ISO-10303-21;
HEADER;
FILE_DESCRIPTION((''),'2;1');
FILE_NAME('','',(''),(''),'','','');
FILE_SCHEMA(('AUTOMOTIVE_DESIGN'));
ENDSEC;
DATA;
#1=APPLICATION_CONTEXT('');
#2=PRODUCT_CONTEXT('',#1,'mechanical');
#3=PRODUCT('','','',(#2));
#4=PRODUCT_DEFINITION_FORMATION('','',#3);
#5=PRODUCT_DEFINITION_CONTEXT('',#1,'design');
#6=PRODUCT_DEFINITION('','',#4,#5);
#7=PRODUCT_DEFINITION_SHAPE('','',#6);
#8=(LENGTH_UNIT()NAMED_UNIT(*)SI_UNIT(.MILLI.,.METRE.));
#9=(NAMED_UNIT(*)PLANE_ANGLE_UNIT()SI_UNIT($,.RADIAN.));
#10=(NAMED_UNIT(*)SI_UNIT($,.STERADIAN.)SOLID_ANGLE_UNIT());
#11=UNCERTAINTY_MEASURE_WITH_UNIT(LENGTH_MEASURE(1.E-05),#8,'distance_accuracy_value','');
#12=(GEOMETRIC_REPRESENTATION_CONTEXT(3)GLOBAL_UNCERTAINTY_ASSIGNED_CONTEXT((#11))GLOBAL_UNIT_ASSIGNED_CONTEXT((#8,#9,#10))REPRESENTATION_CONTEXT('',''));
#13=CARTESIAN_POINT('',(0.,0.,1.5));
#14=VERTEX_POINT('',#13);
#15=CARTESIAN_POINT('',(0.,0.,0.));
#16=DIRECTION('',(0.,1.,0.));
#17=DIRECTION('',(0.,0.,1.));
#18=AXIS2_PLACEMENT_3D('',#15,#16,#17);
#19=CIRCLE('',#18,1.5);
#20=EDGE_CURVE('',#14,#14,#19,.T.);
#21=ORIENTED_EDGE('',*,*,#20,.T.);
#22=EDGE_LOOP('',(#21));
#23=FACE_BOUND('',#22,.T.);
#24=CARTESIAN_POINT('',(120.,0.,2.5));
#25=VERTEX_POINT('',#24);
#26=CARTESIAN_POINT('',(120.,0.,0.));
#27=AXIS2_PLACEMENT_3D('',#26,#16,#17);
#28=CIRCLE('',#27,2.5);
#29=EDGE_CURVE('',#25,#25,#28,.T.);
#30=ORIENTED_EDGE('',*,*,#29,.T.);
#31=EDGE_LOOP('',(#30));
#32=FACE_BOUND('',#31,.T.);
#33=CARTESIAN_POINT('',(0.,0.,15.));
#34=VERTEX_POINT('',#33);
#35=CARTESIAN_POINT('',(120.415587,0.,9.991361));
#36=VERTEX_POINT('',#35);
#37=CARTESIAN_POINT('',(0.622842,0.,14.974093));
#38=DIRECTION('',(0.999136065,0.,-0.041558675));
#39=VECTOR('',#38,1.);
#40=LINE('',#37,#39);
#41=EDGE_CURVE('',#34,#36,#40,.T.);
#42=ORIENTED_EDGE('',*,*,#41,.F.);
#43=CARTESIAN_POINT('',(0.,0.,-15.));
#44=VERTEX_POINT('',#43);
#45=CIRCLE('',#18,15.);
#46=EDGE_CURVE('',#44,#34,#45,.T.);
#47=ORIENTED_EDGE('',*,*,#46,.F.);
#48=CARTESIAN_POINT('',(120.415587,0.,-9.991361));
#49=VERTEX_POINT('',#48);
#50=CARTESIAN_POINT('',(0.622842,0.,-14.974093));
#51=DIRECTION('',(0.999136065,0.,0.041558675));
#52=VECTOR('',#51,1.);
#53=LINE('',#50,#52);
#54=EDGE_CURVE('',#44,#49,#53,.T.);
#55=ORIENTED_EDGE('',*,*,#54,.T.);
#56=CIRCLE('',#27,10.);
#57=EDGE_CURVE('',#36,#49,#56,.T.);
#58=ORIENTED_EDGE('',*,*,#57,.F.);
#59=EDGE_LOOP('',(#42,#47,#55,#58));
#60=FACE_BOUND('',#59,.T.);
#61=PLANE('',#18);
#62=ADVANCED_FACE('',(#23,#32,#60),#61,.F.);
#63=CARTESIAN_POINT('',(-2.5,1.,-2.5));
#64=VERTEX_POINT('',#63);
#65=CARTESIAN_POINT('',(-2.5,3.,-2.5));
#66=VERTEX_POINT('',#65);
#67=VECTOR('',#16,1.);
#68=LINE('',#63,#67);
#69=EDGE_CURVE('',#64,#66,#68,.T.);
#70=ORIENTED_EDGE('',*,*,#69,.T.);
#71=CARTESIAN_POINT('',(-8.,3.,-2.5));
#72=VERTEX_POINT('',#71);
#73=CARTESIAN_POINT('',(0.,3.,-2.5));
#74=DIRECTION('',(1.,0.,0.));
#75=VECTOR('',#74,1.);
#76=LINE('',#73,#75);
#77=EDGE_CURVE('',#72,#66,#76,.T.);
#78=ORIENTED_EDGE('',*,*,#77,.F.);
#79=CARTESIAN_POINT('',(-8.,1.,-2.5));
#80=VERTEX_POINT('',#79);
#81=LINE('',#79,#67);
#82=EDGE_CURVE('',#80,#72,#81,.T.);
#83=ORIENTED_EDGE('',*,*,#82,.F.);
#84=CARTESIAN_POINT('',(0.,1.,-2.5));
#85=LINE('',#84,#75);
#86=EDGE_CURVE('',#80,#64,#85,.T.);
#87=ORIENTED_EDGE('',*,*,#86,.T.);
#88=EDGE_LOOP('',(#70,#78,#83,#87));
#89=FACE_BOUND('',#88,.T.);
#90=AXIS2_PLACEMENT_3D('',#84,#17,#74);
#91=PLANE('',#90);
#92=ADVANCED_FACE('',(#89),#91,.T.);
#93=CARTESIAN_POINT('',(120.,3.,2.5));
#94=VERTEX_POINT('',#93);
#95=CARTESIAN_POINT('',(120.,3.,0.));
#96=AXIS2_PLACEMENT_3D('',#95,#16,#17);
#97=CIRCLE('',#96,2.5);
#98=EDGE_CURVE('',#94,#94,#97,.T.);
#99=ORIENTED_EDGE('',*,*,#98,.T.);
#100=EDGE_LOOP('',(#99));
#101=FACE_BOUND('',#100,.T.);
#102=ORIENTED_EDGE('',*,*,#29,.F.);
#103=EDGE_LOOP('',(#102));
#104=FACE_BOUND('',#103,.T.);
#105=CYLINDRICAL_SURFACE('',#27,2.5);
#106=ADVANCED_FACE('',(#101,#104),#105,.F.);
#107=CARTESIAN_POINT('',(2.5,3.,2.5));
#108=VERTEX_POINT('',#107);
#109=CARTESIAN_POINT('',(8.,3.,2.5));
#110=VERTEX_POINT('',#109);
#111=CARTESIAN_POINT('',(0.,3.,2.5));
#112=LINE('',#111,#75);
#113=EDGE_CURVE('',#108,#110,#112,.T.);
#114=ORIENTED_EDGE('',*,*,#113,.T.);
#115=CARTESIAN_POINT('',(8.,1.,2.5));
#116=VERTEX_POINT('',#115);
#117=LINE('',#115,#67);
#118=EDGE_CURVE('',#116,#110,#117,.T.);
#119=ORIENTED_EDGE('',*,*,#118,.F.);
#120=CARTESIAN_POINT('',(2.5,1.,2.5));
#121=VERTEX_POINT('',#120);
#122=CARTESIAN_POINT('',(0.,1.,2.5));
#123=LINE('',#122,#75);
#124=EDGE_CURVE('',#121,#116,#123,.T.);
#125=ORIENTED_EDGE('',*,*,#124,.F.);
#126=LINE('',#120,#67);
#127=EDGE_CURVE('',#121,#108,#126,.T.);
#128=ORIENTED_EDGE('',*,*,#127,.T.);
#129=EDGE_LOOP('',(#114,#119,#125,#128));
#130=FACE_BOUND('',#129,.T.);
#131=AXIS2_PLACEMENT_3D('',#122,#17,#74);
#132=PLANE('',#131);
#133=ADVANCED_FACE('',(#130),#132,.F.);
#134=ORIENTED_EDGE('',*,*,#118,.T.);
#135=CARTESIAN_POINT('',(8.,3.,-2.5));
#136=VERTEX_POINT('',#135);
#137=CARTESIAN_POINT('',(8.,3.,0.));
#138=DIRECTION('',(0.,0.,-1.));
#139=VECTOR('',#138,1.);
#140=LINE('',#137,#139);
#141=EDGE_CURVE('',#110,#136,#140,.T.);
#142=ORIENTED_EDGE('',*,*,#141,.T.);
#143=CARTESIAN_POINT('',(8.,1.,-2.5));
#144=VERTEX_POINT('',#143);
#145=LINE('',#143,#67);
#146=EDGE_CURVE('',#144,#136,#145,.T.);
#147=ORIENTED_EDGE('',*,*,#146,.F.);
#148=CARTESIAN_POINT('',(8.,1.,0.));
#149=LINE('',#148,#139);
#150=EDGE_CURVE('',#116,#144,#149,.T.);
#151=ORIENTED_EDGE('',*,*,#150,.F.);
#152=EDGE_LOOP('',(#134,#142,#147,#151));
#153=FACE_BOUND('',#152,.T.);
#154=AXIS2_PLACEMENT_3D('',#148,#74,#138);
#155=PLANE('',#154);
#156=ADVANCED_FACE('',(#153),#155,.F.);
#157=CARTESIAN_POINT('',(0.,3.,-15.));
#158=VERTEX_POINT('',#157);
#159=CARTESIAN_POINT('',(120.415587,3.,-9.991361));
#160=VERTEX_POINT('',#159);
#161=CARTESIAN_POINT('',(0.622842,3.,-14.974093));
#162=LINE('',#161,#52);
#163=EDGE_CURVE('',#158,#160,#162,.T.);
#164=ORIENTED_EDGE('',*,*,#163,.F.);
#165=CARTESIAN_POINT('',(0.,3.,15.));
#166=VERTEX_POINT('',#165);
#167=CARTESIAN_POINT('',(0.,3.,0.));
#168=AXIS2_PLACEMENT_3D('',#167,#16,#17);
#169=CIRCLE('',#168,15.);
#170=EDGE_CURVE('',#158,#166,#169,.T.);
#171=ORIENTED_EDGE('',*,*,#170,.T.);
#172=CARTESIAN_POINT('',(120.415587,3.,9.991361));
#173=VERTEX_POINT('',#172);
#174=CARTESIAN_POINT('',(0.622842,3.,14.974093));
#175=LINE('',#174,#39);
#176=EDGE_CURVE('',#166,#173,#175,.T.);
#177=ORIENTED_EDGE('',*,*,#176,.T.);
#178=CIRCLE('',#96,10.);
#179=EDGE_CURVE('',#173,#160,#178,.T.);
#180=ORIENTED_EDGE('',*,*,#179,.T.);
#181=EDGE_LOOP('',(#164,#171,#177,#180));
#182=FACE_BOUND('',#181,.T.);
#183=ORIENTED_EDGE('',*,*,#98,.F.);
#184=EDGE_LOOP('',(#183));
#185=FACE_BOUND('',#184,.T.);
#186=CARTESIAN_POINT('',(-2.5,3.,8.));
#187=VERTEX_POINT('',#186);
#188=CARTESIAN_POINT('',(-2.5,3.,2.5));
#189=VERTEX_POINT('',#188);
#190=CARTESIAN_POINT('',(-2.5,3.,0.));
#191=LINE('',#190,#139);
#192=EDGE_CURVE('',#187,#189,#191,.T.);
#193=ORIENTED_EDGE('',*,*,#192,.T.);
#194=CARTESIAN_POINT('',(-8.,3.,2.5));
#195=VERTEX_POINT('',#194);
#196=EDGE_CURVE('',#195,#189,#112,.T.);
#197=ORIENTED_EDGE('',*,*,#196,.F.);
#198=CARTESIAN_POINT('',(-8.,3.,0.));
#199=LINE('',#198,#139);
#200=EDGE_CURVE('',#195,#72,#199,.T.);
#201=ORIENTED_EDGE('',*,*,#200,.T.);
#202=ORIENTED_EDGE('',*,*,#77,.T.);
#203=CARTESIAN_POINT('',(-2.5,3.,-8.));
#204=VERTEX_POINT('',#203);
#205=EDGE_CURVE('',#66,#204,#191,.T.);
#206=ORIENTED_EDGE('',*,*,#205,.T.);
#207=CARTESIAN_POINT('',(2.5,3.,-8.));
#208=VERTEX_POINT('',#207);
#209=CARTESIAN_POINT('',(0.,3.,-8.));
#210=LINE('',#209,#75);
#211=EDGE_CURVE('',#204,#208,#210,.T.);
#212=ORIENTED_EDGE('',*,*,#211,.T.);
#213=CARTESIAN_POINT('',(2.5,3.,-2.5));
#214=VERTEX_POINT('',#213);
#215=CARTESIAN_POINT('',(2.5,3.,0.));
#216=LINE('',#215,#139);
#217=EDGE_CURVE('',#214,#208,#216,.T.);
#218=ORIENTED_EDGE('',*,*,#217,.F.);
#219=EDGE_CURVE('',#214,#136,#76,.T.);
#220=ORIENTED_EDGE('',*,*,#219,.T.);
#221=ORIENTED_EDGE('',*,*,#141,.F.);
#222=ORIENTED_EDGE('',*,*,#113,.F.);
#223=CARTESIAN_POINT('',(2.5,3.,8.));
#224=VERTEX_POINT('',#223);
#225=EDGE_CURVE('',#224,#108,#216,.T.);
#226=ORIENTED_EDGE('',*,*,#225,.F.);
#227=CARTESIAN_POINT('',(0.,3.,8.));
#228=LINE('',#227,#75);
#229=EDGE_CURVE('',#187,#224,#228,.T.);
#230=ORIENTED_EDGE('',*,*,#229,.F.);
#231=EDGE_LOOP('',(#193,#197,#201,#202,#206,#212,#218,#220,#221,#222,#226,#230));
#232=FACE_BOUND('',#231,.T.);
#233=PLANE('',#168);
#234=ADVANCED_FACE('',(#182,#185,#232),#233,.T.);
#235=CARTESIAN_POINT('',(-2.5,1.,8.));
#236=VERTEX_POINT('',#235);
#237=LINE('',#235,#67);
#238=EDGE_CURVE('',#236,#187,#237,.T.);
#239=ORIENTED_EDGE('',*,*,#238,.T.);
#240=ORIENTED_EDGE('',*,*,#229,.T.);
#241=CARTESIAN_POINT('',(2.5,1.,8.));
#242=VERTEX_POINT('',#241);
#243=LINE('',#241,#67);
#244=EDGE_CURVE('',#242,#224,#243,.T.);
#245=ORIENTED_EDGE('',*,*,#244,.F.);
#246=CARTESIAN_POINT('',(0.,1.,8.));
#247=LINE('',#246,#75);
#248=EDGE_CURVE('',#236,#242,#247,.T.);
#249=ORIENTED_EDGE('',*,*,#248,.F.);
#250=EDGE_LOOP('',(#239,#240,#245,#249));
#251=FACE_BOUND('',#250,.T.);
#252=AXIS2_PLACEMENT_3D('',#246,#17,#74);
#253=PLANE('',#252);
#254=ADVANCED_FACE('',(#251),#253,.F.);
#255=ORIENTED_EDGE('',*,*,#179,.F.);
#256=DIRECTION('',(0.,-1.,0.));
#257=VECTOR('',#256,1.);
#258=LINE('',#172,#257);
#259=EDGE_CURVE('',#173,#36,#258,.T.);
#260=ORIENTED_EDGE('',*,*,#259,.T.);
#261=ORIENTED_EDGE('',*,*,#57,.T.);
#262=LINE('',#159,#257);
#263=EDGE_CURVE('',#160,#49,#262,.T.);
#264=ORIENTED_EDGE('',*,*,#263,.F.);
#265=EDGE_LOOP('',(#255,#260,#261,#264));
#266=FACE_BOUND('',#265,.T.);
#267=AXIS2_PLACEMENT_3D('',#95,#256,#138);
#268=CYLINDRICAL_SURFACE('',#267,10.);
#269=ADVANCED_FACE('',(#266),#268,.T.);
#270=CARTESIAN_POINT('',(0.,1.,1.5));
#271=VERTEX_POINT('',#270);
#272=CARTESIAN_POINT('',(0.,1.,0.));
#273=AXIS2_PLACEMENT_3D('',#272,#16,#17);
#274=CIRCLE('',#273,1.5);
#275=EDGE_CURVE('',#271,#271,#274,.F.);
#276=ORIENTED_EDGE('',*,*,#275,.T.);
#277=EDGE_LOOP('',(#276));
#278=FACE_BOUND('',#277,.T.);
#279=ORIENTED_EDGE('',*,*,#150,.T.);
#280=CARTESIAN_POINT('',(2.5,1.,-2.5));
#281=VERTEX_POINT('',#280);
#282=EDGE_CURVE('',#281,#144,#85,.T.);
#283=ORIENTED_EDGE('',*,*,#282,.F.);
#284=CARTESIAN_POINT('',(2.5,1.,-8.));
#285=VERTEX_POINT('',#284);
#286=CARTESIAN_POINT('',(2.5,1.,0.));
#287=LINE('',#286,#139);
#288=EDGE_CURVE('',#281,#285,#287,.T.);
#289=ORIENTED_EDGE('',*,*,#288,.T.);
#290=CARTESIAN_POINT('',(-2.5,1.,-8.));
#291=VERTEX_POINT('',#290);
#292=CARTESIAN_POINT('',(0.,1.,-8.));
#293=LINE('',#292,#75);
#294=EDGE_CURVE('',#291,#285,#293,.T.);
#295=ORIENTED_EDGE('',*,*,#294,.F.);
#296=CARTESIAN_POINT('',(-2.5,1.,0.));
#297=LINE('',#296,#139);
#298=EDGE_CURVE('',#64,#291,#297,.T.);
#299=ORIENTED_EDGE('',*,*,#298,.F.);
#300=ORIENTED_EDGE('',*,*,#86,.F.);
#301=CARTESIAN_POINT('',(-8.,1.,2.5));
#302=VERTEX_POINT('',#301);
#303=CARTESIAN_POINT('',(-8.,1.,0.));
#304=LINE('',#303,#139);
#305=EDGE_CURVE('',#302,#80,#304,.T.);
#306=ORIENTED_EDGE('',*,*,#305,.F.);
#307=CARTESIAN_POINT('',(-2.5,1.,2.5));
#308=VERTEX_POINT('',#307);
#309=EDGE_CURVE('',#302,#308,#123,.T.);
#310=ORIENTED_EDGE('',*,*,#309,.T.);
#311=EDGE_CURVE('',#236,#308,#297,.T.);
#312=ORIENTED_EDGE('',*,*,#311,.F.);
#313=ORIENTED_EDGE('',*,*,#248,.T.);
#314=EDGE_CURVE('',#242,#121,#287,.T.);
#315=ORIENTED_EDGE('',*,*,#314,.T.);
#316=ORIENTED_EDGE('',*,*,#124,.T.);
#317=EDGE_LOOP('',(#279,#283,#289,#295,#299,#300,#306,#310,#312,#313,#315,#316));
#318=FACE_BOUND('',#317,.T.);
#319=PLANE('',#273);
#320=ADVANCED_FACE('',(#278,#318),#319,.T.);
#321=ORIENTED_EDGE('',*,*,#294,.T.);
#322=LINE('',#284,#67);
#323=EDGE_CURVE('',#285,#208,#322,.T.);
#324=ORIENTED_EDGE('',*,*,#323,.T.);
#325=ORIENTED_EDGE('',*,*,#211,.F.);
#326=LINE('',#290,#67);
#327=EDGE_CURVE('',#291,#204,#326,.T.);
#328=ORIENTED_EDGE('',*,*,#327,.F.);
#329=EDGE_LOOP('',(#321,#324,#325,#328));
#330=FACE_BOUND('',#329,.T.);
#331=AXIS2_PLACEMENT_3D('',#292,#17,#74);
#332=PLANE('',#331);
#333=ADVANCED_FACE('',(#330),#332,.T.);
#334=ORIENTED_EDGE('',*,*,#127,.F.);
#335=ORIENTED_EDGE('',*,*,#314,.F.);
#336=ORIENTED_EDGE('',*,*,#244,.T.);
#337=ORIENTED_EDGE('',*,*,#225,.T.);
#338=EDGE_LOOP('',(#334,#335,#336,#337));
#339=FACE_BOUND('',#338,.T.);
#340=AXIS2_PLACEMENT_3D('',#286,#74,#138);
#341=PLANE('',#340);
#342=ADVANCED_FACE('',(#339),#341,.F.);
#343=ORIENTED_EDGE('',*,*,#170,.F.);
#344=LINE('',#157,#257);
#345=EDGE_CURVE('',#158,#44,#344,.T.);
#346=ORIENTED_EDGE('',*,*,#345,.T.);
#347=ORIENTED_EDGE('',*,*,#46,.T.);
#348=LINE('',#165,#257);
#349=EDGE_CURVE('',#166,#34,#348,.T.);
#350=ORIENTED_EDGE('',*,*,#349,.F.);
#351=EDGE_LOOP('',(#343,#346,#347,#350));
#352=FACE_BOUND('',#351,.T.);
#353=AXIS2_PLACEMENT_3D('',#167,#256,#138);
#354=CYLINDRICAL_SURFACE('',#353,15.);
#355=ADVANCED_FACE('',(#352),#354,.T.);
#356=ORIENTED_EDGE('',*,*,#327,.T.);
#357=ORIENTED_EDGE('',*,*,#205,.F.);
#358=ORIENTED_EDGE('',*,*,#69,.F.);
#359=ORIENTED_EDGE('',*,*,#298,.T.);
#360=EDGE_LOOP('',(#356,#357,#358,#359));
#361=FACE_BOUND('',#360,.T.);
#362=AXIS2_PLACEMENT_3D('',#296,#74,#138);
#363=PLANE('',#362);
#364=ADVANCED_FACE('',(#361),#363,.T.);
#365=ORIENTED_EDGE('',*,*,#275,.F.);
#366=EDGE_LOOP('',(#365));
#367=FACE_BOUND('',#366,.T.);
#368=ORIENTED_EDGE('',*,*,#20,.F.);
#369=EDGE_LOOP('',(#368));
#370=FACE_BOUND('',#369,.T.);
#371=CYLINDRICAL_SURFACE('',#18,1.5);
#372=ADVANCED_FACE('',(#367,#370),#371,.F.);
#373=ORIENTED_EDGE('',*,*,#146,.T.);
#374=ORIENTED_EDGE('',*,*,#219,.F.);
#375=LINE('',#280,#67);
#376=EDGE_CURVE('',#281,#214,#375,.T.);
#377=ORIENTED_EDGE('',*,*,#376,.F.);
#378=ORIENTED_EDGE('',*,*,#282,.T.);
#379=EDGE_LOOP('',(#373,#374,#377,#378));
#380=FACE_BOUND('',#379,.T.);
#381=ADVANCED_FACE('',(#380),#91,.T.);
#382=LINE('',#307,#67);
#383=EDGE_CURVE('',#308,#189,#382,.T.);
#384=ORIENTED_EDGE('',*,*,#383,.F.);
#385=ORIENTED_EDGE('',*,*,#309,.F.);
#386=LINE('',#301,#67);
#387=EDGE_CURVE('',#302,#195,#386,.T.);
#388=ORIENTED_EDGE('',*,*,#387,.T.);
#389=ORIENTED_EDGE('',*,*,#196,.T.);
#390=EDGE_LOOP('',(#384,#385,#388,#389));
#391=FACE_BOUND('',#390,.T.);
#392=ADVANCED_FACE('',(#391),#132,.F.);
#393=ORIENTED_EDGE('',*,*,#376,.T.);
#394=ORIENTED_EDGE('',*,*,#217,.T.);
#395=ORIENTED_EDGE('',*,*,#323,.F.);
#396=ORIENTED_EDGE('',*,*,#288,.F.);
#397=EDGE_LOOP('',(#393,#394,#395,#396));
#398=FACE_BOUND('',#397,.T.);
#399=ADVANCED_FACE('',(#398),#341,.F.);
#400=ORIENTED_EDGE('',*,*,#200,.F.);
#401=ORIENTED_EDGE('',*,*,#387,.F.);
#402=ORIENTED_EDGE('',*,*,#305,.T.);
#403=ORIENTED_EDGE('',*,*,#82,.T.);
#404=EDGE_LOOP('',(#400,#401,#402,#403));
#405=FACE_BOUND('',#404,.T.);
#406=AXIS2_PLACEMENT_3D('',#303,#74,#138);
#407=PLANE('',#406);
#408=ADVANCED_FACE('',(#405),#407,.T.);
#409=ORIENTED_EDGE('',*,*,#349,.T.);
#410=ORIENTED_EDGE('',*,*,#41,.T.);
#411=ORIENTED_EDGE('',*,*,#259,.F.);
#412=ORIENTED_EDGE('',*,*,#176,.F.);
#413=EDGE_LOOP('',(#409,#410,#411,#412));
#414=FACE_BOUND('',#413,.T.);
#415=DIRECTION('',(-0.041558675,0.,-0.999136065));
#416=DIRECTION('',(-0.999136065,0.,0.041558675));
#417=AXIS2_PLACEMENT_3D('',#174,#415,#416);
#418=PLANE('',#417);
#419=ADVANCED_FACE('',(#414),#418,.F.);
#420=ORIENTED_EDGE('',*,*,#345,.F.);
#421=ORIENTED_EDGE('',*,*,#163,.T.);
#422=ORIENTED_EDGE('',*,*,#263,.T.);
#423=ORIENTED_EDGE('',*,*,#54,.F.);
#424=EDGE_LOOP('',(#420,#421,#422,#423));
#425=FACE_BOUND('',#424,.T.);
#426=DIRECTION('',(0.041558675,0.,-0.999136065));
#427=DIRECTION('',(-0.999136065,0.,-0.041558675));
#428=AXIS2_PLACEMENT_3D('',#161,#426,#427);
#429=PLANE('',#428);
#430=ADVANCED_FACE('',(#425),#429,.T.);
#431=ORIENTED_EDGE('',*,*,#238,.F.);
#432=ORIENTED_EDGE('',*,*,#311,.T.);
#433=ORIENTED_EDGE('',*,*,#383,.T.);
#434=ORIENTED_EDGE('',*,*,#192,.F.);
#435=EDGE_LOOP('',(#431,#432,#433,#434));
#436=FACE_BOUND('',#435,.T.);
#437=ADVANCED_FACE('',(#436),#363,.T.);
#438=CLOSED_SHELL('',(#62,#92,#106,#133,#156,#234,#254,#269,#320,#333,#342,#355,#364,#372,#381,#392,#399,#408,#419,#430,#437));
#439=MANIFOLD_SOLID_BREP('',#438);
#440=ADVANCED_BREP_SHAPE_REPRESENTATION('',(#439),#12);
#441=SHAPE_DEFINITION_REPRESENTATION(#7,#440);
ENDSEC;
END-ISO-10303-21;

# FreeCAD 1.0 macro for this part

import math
import FreeCAD as App
import Part
import Sketcher
from FreeCAD import Vector


def add_polygon(sketch, points):
    """Adds a closed chain of lines whose ends are joined by coincident constraints."""
    first, n = sketch.GeometryCount, len(points)
    for a, b in zip(points, points[1:] + points[:1]):
        sketch.addGeometry(Part.LineSegment(App.Vector(*a, 0), App.Vector(*b, 0)), False)
    for i in range(n):
        sketch.addConstraint(Sketcher.Constraint("Coincident", first + i, 2, first + (i + 1) % n, 1))

doc = App.newDocument("Part")
body = doc.addObject("PartDesign::Body", "Body")

# Sketch on XZ plane
sketch1 = doc.addObject("Sketcher::SketchObject", "Sketch")
body.addObject(sketch1)
sketch1.AttachmentSupport = (doc.XZ_Plane, [""])
sketch1.MapMode = "FlatFace"
sketch1.addGeometry([
    Part.LineSegment(Vector(0, 15, 0), Vector(120, 10, 0)),  # 0
    Part.ArcOfCircle(Part.Circle(Vector(120, 0, 0), Vector(0, 0, 1), 10), math.radians(-88), math.radians(88)),  # 1
    Part.LineSegment(Vector(120, -10, 0), Vector(0, -15, 0)),  # 2
    Part.ArcOfCircle(Part.Circle(Vector(0, 0, 0), Vector(0, 0, 1), 15), math.radians(90), math.radians(270)),  # 3
    Part.Circle(Vector(0, 0, 0), Vector(0, 0, 1), 5),  # 4
], False)
sketch1.addConstraint([
    Sketcher.Constraint("Tangent", 0, 2, 1, 2),
    Sketcher.Constraint("Tangent", 1, 1, 2, 1),
    Sketcher.Constraint("Coincident", 2, 2, 3, 2),
    Sketcher.Constraint("Coincident", 3, 1, 0, 1),
    Sketcher.Constraint("Coincident", 3, 3, -1, 1),
    Sketcher.Constraint("Coincident", 4, 3, -1, 1),
    Sketcher.Constraint("Symmetric", 0, 2, 1, 1, -1),
    Sketcher.Constraint("PointOnObject", 2, 2, -2),
    Sketcher.Constraint("Diameter", 4, 10.0),
    Sketcher.Constraint("Radius", 1, 10.0),
    Sketcher.Constraint("Radius", 3, 15.0),
    Sketcher.Constraint("DistanceX", -1, 1, 1, 3, 120.0),
])
pad1 = doc.addObject("PartDesign::Pad", "Pad")
body.addObject(pad1)
pad1.Profile = sketch1
pad1.Length = 3
pad1.Reversed = True

# Sketch on XZ plane
sketch2 = doc.addObject("Sketcher::SketchObject", "Sketch001")
body.addObject(sketch2)
sketch2.AttachmentSupport = (doc.XZ_Plane, [""])
sketch2.MapMode = "FlatFace"
sketch2.AttachmentOffset = App.Placement(Vector(0, 0, -3), App.Rotation())
sketch2.addGeometry(Part.Circle(Vector(120, 0, 0), Vector(0, 0, 1), 2.5), False)
sketch2.addConstraint([
    Sketcher.Constraint("PointOnObject", 0, 3, -1),
    Sketcher.Constraint("Diameter", 0, 5.0),
    Sketcher.Constraint("DistanceX", -1, 1, 0, 3, 120.0),
])
pocket1 = doc.addObject("PartDesign::Pocket", "Pocket")
body.addObject(pocket1)
pocket1.Profile = sketch2
pocket1.Type = "ThroughAll"
pocket1.Reversed = True

# Sketch on XZ plane
sketch3 = doc.addObject("Sketcher::SketchObject", "Sketch002")
body.addObject(sketch3)
sketch3.AttachmentSupport = (doc.XZ_Plane, [""])
sketch3.MapMode = "FlatFace"
sketch3.addGeometry(Part.Circle(Vector(0, 0, 0), Vector(0, 0, 1), 5), False)
sketch3.addConstraint([
    Sketcher.Constraint("Coincident", 0, 3, -1, 1),
    Sketcher.Constraint("Diameter", 0, 10.0),
])
pad2 = doc.addObject("PartDesign::Pad", "Pad001")
body.addObject(pad2)
pad2.Profile = sketch3
pad2.Length = 3
pad2.Reversed = True

# Sketch on XZ plane
sketch4 = doc.addObject("Sketcher::SketchObject", "Sketch003")
body.addObject(sketch4)
sketch4.AttachmentSupport = (doc.XZ_Plane, [""])
sketch4.MapMode = "FlatFace"
sketch4.AttachmentOffset = App.Placement(Vector(0, 0, -3), App.Rotation())
sketch4.addGeometry(Part.Circle(Vector(0, 0, 0), Vector(0, 0, 1), 1.5), False)
sketch4.addConstraint([
    Sketcher.Constraint("Coincident", 0, 3, -1, 1),
    Sketcher.Constraint("Diameter", 0, 3.0),
])
pocket2 = doc.addObject("PartDesign::Pocket", "Pocket001")
body.addObject(pocket2)
pocket2.Profile = sketch4
pocket2.Length = 3
pocket2.Reversed = True

# Sketch on XZ plane
sketch5 = doc.addObject("Sketcher::SketchObject", "Sketch004")
body.addObject(sketch5)
sketch5.AttachmentSupport = (doc.XZ_Plane, [""])
sketch5.MapMode = "FlatFace"
sketch5.AttachmentOffset = App.Placement(Vector(0, 0, -3), App.Rotation())
add_polygon(sketch5, [(-2.5, -8), (-2.5, -2.5), (-8, -2.5), (-8, 2.5), (-2.5, 2.5), (-2.5, 8), (2.5, 8), (2.5, 2.5), (8, 2.5), (8, -2.5), (2.5, -2.5), (2.5, -8)])  # lines 0-11
sketch5.addGeometry(Part.Circle(Vector(0, 0, 0), Vector(0, 0, 1), 1.5), False)  # 12
sketch5.addConstraint([
    Sketcher.Constraint("Vertical", 0),
    Sketcher.Constraint("Horizontal", 1),
    Sketcher.Constraint("Vertical", 2),
    Sketcher.Constraint("Horizontal", 3),
    Sketcher.Constraint("Vertical", 4),
    Sketcher.Constraint("Horizontal", 5),
    Sketcher.Constraint("Vertical", 6),
    Sketcher.Constraint("Horizontal", 7),
    Sketcher.Constraint("Vertical", 8),
    Sketcher.Constraint("Horizontal", 9),
    Sketcher.Constraint("Vertical", 10),
    Sketcher.Constraint("Horizontal", 11),
    Sketcher.Constraint("Coincident", 12, 3, -1, 1),
    Sketcher.Constraint("Symmetric", 0, 2, 6, 2, -1, 1),
    Sketcher.Constraint("Symmetric", 2, 2, 8, 2, -1, 1),
    Sketcher.Constraint("Symmetric", 4, 2, 10, 2, -1, 1),
    Sketcher.Constraint("Symmetric", 3, 2, 6, 2, -2),
    Sketcher.Constraint("Equal", 9, 0),
    Sketcher.Constraint("Equal", 11, 2),
    Sketcher.Constraint("Diameter", 12, 3.0),
    Sketcher.Constraint("DistanceX", 5, 1, 5, 2, 5.0),
    Sketcher.Constraint("DistanceX", 1, 2, 1, 1, 5.5),
])
pocket3 = doc.addObject("PartDesign::Pocket", "Pocket002")
body.addObject(pocket3)
pocket3.Profile = sketch5
pocket3.Length = 2
pocket3.Reversed = True

doc.recompute()
